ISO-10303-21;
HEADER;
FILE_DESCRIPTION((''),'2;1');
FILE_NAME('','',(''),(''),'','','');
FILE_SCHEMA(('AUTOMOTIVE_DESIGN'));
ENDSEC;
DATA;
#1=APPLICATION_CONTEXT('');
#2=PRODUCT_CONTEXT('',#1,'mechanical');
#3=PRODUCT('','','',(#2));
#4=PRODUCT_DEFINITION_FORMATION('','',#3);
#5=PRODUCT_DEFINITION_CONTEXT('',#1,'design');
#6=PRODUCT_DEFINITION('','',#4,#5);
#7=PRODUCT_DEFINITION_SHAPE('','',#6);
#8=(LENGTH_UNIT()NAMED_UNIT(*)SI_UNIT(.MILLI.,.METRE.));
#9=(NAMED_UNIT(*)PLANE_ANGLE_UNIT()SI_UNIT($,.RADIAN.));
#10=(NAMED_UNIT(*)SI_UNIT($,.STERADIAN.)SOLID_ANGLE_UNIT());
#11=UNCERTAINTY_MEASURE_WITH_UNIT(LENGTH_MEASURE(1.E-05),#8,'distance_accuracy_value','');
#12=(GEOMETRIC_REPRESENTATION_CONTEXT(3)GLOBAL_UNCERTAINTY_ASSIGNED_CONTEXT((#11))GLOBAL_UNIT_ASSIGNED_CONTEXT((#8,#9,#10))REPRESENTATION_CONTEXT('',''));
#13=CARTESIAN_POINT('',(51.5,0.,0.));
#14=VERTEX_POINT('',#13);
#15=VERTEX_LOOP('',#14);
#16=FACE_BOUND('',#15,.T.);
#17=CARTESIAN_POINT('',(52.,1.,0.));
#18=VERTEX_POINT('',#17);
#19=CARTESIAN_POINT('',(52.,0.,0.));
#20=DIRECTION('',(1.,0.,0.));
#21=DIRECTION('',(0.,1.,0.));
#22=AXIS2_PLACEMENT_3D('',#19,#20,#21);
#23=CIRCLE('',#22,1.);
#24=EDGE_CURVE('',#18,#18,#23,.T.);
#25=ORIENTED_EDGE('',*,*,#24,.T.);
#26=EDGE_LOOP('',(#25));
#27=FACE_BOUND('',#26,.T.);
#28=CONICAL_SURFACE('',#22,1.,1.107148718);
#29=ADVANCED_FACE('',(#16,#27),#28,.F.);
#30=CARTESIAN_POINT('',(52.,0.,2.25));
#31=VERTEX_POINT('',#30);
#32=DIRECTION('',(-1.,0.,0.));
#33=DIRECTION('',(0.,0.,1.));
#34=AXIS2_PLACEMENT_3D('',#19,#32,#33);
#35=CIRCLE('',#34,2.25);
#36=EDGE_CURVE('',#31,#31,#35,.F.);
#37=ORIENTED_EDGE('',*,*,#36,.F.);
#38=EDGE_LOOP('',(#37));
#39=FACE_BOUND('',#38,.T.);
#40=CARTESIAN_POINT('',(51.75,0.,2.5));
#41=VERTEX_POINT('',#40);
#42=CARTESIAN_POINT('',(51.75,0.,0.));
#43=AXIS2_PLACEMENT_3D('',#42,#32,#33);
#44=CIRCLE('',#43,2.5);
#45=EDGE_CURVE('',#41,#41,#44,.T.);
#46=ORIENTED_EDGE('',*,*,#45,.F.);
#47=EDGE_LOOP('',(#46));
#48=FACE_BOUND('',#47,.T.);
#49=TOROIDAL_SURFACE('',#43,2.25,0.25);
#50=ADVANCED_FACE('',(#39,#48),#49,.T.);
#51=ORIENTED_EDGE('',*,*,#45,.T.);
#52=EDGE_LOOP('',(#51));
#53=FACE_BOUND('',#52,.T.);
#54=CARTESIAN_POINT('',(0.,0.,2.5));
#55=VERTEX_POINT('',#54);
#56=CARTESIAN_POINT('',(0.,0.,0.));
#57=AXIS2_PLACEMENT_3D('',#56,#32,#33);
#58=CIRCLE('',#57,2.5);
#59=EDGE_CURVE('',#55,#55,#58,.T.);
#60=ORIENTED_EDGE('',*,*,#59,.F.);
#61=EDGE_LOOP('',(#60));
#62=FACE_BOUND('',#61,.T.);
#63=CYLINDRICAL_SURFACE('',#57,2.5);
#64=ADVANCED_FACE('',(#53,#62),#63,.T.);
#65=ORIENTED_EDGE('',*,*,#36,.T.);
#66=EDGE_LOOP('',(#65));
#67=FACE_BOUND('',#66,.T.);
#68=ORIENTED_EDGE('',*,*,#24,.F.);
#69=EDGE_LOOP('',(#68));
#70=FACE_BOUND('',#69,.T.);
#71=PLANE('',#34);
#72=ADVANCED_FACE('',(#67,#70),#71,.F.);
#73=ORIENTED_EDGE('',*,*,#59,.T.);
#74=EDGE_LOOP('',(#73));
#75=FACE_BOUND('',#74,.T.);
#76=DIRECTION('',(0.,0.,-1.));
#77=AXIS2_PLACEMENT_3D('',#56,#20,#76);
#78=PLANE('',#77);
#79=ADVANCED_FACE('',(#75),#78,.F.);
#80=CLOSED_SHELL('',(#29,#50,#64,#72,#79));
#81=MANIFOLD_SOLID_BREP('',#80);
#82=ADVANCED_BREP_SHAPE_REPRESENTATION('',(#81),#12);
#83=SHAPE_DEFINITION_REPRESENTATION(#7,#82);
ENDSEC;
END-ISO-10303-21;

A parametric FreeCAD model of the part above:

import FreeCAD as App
import Part
import Sketcher
from FreeCAD import Vector
Q = App.Units.Quantity


def edges_at(feature, points):
    """Names of the edges that pass closest to the given points."""
    edges = feature.Shape.Edges
    near = lambda p: min(range(len(edges)), key=lambda i: edges[i].distToShape(Part.Vertex(*p))[0])
    return sorted({f"Edge{near(p) + 1}" for p in points})

doc = App.newDocument("Part")
body = doc.addObject("PartDesign::Body", "Body")

# Sketch on XY plane
sketch1 = body.newObject("Sketcher::SketchObject", "Sketch")
sketch1.AttachmentSupport = (doc.getObject("XY_Plane"), [""])
sketch1.MapMode = "FlatFace"
sketch1.addGeometry([
    Part.LineSegment(Vector(0, 2.5, 0), Vector(0, 0, 0)),
    Part.LineSegment(Vector(0, 0, 0), Vector(52, 0, 0)),
    Part.LineSegment(Vector(52, 0, 0), Vector(52, 2.5, 0)),
    Part.LineSegment(Vector(52, 2.5, 0), Vector(0, 2.5, 0)),
], False)
sketch1.addConstraint([
    Sketcher.Constraint("Coincident", 0, 2, 1, 1),
    Sketcher.Constraint("Coincident", 1, 2, 2, 1),
    Sketcher.Constraint("Coincident", 2, 2, 3, 1),
    Sketcher.Constraint("Coincident", 3, 2, 0, 1),
    Sketcher.Constraint("Vertical", 0),
    Sketcher.Constraint("Horizontal", 1),
    Sketcher.Constraint("Vertical", 2),
    Sketcher.Constraint("Horizontal", 3),
    Sketcher.Constraint("Coincident", 0, 2, -1, 1),
    Sketcher.Constraint("DistanceX", 1, 1, 1, 2, Q("52 mm")),
    Sketcher.Constraint("DistanceY", 0, 2, 0, 1, Q("2.5 mm")),
])
revolution = body.newObject("PartDesign::Revolution", "Revolution")
revolution.Profile = sketch1
revolution.ReferenceAxis = (sketch1, ["H_Axis"])
revolution.Angle = 360
doc.recompute()

fillet = body.newObject("PartDesign::Fillet", "Fillet")
fillet.Base = (revolution, edges_at(revolution, [(52, -2.5, 0)]))
fillet.Radius = 0.25

# Sketch on XY plane
sketch2 = body.newObject("Sketcher::SketchObject", "Sketch001")
sketch2.AttachmentSupport = (doc.getObject("XY_Plane"), [""])
sketch2.MapMode = "FlatFace"
sketch2.addGeometry([
    Part.LineSegment(Vector(51.5, 0, 0), Vector(52, 0, 0)),
    Part.LineSegment(Vector(52, 0, 0), Vector(52, 1, 0)),
    Part.LineSegment(Vector(52, 1, 0), Vector(51.5, 0, 0)),
], False)
sketch2.addConstraint([
    Sketcher.Constraint("Coincident", 0, 2, 1, 1),
    Sketcher.Constraint("Coincident", 1, 2, 2, 1),
    Sketcher.Constraint("Coincident", 2, 2, 0, 1),
    Sketcher.Constraint("Horizontal", 0),
    Sketcher.Constraint("Vertical", 1),
    Sketcher.Constraint("PointOnObject", 0, 2, -1),
    Sketcher.Constraint("DistanceY", 1, 1, 1, 2, Q("1 mm")),
    Sketcher.Constraint("DistanceX", 0, 1, 0, 2, Q("0.5 mm")),
    Sketcher.Constraint("DistanceX", -1, 1, 0, 2, Q("52 mm")),
])
groove = body.newObject("PartDesign::Groove", "Groove")
groove.Profile = sketch2
groove.ReferenceAxis = (sketch2, ["H_Axis"])
groove.Angle = 360

doc.recompute()
